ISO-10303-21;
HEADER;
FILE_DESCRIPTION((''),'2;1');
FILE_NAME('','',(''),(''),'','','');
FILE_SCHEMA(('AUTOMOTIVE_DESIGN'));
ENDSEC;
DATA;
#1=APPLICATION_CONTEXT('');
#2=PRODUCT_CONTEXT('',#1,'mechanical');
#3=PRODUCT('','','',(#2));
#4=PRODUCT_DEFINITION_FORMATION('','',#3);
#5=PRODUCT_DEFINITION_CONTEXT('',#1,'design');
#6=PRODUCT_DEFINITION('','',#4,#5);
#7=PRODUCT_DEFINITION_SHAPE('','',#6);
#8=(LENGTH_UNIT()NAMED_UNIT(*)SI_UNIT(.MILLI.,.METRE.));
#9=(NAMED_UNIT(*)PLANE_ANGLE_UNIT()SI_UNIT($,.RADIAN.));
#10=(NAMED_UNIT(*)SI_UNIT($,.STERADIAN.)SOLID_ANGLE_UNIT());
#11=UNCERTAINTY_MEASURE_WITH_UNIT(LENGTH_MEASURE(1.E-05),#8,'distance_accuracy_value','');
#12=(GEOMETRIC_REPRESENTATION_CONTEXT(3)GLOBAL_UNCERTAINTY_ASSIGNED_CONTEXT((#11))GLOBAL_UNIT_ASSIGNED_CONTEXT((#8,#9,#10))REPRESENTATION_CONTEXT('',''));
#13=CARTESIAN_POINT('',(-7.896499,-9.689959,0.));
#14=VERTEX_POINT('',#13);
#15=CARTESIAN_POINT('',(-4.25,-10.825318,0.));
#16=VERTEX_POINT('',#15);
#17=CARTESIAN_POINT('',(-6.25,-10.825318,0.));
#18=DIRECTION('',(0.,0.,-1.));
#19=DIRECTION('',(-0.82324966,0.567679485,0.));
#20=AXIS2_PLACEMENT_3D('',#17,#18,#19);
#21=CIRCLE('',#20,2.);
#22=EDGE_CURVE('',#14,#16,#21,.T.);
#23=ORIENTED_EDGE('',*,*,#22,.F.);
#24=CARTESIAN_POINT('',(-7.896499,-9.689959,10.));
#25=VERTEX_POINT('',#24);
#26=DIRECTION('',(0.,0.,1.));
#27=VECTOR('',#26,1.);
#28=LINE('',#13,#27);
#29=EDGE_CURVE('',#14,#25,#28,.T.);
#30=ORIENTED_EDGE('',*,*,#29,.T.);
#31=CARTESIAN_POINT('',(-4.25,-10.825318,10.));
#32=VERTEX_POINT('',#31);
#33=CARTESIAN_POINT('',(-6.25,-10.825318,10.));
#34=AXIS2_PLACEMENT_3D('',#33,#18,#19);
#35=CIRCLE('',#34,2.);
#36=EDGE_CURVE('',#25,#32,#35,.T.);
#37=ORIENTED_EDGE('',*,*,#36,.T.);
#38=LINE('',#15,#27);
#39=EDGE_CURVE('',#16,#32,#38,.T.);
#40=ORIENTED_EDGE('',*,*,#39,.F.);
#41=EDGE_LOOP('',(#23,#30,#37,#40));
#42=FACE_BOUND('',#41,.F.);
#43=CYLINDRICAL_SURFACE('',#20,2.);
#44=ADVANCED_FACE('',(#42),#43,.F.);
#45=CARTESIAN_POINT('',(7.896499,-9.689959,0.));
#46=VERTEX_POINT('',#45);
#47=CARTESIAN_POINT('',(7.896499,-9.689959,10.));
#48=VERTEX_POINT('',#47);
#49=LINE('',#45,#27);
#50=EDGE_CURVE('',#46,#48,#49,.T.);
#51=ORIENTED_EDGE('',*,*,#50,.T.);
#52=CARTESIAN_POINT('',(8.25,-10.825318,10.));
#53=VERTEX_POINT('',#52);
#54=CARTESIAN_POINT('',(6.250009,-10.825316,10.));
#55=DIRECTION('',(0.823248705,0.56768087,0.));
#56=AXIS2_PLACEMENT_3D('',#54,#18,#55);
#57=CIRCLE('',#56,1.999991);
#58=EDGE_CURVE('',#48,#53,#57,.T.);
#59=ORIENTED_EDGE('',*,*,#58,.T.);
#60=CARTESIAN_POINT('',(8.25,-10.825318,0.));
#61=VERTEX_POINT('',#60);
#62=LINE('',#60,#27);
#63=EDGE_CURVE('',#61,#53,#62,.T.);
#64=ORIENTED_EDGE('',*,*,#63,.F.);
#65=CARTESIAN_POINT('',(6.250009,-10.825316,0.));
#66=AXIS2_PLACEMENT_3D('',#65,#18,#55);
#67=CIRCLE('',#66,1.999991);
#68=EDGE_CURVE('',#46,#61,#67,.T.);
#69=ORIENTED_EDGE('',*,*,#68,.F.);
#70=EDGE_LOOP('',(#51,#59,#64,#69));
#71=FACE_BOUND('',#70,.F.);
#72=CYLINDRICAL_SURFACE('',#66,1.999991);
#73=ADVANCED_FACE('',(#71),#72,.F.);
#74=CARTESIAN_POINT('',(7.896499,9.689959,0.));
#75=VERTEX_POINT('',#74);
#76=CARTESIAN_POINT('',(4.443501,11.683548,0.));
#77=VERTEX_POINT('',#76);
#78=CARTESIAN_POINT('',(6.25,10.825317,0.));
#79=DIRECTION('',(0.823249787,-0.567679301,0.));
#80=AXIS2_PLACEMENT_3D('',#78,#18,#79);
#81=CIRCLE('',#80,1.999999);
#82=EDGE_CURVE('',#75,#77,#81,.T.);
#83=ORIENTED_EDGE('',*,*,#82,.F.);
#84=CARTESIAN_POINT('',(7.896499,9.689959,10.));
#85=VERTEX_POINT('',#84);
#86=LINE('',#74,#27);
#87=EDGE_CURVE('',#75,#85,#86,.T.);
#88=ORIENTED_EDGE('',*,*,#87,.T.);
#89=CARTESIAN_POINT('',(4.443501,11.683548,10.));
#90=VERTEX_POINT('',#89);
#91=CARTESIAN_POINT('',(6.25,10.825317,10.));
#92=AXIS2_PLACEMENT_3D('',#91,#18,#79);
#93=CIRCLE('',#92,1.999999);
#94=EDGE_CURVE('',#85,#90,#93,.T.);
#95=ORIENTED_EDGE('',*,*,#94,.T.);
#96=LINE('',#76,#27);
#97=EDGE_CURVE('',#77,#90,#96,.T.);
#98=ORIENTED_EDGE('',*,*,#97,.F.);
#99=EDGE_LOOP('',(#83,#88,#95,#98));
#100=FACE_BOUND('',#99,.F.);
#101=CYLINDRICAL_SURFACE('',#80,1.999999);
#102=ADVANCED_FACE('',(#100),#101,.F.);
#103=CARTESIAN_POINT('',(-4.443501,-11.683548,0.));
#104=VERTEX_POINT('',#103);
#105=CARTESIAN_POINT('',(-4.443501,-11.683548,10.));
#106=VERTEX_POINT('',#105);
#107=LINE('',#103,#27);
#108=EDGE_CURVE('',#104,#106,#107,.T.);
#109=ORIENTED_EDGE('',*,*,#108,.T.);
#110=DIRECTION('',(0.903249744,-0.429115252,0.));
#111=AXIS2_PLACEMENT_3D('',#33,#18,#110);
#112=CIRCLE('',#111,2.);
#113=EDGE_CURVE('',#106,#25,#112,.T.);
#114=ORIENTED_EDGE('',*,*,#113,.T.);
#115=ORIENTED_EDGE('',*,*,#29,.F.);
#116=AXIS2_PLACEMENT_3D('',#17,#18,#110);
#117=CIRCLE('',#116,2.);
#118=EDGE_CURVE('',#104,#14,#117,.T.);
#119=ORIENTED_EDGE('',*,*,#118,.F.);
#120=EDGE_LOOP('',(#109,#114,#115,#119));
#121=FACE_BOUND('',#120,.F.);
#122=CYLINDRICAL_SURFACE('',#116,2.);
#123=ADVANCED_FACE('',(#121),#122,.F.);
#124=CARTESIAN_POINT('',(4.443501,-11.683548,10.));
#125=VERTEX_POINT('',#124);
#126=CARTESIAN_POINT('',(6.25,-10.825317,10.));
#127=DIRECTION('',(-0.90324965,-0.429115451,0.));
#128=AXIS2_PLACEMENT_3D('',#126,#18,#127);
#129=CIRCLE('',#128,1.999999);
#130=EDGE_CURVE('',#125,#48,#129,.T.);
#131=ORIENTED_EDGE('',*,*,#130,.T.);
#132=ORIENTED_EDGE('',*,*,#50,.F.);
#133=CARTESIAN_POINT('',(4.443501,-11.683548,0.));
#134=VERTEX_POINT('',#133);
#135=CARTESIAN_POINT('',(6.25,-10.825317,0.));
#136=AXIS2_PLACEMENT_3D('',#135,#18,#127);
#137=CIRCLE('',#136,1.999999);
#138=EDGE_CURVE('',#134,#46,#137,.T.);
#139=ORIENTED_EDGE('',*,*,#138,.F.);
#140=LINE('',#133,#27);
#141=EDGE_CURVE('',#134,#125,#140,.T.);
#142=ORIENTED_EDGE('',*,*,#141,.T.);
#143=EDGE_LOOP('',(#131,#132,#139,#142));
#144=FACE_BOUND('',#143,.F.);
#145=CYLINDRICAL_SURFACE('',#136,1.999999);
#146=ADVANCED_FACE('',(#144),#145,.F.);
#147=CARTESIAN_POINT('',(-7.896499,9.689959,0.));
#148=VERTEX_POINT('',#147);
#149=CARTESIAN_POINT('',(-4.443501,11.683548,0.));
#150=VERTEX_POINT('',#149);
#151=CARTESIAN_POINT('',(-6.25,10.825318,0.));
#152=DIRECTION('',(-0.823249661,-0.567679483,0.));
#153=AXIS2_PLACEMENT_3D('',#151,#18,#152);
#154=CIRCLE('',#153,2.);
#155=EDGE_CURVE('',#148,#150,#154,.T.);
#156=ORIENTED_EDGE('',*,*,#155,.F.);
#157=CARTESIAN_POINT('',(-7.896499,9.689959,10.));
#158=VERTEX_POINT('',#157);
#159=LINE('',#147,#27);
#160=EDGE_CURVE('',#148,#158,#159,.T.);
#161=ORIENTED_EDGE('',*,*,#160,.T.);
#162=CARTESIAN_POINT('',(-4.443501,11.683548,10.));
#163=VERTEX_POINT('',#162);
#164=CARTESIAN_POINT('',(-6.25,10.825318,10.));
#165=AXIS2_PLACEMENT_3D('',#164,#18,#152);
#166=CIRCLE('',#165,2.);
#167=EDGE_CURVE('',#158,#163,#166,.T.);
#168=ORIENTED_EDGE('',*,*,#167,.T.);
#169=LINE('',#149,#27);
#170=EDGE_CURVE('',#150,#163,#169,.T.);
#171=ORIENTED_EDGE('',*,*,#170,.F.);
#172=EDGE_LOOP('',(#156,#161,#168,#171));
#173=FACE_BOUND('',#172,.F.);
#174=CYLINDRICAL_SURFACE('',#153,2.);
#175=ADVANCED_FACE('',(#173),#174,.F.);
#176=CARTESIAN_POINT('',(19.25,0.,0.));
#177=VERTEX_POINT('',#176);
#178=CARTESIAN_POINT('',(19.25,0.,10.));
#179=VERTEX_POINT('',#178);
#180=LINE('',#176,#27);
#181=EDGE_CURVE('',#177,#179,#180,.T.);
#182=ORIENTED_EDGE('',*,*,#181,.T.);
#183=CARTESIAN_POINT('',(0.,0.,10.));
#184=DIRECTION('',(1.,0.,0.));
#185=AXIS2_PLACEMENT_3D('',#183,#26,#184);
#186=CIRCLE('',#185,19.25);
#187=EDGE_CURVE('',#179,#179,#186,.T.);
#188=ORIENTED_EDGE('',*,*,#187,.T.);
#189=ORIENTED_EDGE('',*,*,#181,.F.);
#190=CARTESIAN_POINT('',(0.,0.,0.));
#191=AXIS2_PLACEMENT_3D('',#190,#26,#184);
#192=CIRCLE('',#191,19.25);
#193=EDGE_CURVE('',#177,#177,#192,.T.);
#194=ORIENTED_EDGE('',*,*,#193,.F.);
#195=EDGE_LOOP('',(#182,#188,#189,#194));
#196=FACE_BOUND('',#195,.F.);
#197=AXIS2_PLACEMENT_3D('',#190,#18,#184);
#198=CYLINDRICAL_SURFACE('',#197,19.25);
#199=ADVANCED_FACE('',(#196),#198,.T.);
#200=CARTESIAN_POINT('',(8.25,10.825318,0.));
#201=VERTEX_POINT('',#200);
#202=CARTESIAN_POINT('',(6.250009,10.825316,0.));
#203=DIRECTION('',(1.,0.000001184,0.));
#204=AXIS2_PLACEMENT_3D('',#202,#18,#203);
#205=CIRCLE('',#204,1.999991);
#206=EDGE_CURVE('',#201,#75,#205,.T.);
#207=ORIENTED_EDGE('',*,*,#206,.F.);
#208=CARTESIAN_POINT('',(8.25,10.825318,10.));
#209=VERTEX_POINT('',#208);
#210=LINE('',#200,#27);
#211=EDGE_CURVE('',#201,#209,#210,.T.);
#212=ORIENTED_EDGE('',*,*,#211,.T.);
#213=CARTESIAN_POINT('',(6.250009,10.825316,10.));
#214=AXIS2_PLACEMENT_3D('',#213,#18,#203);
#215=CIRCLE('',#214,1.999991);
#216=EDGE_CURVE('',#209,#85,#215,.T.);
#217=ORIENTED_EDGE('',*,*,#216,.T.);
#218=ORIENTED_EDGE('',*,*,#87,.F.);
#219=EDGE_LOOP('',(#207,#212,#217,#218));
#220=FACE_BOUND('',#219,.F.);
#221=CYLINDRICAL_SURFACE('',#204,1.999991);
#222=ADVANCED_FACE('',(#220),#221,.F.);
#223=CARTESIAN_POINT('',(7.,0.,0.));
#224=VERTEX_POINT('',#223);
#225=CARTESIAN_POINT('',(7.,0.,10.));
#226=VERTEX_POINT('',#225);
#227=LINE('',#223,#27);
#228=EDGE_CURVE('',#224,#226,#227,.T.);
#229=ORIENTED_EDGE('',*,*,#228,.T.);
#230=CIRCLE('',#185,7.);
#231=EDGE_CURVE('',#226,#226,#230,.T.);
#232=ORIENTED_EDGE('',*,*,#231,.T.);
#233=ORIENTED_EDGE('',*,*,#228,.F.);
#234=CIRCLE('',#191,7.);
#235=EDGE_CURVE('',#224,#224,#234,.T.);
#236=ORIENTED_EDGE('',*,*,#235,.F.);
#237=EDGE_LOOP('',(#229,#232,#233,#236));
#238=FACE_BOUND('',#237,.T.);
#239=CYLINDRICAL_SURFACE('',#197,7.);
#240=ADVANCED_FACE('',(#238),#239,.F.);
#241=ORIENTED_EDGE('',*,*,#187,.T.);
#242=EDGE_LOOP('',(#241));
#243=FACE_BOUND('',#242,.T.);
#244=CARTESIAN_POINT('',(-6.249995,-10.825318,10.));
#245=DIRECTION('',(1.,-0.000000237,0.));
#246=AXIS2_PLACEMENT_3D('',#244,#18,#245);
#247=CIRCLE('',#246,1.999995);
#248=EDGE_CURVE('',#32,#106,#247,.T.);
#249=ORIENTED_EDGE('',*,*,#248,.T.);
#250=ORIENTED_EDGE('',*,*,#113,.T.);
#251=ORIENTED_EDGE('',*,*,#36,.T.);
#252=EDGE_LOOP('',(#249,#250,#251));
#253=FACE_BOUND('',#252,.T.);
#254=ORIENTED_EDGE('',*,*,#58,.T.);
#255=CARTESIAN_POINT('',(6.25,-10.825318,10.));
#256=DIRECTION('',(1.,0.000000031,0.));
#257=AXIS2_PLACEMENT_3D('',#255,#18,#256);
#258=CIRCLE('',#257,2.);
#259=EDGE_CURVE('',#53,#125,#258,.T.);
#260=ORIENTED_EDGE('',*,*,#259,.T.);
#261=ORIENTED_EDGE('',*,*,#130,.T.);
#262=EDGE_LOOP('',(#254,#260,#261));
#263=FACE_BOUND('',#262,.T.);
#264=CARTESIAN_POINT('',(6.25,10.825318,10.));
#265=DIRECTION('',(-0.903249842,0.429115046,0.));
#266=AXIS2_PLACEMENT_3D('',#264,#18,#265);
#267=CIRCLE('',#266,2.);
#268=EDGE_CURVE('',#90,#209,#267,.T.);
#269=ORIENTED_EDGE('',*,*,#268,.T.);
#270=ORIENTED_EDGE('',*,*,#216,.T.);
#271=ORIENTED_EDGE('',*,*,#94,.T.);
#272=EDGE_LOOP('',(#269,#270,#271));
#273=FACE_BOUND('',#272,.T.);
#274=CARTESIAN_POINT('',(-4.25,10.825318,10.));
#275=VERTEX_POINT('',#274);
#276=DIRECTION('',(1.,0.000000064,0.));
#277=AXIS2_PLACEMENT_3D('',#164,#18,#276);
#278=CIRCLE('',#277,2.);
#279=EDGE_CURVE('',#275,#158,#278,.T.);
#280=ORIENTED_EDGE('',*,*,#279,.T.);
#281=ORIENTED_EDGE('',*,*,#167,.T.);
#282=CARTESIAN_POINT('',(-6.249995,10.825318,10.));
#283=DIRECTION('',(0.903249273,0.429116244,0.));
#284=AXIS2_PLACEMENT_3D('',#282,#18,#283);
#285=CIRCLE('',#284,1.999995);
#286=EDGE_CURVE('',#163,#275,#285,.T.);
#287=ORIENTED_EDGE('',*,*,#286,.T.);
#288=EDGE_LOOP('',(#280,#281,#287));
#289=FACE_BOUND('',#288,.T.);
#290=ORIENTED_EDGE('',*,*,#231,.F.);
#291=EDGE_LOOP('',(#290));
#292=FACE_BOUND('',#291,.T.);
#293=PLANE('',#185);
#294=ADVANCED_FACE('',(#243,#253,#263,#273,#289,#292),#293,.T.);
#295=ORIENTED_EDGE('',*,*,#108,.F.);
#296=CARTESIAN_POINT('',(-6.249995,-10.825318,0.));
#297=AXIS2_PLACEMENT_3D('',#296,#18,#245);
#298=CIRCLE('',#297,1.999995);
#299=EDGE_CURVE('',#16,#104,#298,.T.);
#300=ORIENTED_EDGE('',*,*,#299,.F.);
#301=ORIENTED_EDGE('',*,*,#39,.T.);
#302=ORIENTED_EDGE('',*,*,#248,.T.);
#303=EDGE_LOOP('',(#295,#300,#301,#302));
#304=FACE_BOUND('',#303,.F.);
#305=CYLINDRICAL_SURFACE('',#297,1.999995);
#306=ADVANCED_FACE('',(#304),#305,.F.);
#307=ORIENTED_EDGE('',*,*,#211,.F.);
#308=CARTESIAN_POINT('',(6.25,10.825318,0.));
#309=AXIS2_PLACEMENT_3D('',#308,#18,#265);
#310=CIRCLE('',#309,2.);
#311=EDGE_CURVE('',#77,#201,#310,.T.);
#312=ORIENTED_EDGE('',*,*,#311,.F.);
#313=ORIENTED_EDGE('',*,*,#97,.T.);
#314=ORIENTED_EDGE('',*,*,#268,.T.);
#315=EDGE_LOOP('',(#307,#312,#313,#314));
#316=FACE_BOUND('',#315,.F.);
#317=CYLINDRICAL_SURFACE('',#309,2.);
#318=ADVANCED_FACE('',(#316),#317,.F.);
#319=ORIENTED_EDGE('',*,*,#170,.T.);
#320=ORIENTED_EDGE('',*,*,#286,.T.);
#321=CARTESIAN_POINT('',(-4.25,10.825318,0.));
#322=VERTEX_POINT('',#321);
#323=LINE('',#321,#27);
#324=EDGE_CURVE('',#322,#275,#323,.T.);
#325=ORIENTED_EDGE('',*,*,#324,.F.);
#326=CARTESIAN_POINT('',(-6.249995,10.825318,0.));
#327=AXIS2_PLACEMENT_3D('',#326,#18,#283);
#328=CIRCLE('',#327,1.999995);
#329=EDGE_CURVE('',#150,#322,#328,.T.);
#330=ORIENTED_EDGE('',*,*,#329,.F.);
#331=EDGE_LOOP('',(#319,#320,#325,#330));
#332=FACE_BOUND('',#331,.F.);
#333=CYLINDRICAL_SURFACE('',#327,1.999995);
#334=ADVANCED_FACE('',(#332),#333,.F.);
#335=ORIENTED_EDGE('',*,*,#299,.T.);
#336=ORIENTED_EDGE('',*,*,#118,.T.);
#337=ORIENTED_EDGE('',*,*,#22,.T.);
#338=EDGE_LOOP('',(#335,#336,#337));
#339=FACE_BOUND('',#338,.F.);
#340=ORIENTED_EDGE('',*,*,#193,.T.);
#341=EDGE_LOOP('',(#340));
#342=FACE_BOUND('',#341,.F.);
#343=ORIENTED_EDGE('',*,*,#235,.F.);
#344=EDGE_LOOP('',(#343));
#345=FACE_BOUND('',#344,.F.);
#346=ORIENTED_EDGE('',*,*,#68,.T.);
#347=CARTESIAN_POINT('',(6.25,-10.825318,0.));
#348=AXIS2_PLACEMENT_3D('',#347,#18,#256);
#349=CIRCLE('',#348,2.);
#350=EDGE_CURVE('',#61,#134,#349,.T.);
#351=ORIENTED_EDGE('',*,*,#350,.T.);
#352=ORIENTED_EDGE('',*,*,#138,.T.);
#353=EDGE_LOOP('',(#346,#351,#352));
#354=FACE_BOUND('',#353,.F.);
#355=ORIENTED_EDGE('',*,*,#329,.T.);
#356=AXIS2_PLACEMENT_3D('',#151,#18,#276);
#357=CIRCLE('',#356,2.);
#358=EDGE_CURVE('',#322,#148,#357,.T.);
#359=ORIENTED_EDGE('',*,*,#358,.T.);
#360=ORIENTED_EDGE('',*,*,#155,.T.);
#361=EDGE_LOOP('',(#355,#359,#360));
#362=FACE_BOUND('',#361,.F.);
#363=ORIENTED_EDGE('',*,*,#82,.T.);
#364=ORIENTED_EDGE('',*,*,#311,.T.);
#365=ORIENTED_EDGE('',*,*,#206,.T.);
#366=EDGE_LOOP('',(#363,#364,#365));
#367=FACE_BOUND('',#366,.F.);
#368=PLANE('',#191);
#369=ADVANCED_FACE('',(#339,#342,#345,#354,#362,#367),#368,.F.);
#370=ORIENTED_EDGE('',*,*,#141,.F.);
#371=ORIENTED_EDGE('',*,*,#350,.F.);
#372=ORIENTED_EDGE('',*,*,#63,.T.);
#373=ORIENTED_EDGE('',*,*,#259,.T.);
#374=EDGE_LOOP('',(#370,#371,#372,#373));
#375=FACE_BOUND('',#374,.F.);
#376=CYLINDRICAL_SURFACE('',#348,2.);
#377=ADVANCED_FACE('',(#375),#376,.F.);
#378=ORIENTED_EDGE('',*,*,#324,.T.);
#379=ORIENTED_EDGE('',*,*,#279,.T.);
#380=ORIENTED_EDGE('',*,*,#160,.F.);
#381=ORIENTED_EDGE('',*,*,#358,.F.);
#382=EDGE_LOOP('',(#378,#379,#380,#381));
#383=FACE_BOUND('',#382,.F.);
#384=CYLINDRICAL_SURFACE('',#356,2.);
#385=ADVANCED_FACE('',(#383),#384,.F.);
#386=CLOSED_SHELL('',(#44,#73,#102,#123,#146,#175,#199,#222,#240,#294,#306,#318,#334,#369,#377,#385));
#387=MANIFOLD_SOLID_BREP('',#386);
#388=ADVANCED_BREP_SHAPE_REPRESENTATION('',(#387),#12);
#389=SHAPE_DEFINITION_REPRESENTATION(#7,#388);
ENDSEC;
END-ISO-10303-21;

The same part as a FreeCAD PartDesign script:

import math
import FreeCAD as App
import Part
import Sketcher
Q = App.Units.Quantity

doc = App.newDocument("Part")
body = doc.addObject("PartDesign::Body", "Body")

sketch1 = body.newObject("Sketcher::SketchObject", "Sketch")
sketch1.AttachmentSupport = (doc.getObject("XY_Plane"), [""])
sketch1.MapMode = "FlatFace"
sketch1.addGeometry([
    Part.Circle(App.Vector(0, 0, 0), App.Vector(0, 0, 1), 19.2),
    Part.ArcOfCircle(Part.Circle(App.Vector(-6.3, -10.8, 0), App.Vector(0, 0, 1), 2), math.radians(145), math.radians(335)),
    Part.ArcOfCircle(Part.Circle(App.Vector(-6.2, -10.8, 0), App.Vector(0, 0, 1), 2), math.radians(0), math.radians(145)),
    Part.ArcOfCircle(Part.Circle(App.Vector(-6.2, -10.8, 0), App.Vector(0, 0, 1), 2), math.radians(-25), math.radians(0)),
    Part.ArcOfCircle(Part.Circle(App.Vector(6.3, -10.8, 0), App.Vector(0, 0, 1), 2), math.radians(-155), math.radians(0)),
    Part.ArcOfCircle(Part.Circle(App.Vector(6.2, -10.8, 0), App.Vector(0, 0, 1), 2), math.radians(35), math.radians(205)),
    Part.ArcOfCircle(Part.Circle(App.Vector(6.3, -10.8, 0), App.Vector(0, 0, 1), 2), math.radians(0), math.radians(35)),
    Part.Circle(App.Vector(0, 0, 0), App.Vector(0, 0, 1), 7),
    Part.ArcOfCircle(Part.Circle(App.Vector(-6.3, 10.8, 0), App.Vector(0, 0, 1), 2), math.radians(25), math.radians(215)),
    Part.ArcOfCircle(Part.Circle(App.Vector(-6.2, 10.8, 0), App.Vector(0, 0, 1), 2), math.radians(0), math.radians(25)),
    Part.ArcOfCircle(Part.Circle(App.Vector(-6.2, 10.8, 0), App.Vector(0, 0, 1), 2), math.radians(-145), math.radians(0)),
    Part.ArcOfCircle(Part.Circle(App.Vector(6.3, 10.8, 0), App.Vector(0, 0, 1), 2), math.radians(-35), math.radians(0)),
    Part.ArcOfCircle(Part.Circle(App.Vector(6.2, 10.8, 0), App.Vector(0, 0, 1), 2), math.radians(155), math.radians(325)),
    Part.ArcOfCircle(Part.Circle(App.Vector(6.3, 10.8, 0), App.Vector(0, 0, 1), 2), math.radians(0), math.radians(155)),
], False)
sketch1.addConstraint([
    Sketcher.Constraint("Tangent", 1, 1, 2, 2),
    Sketcher.Constraint("Tangent", 2, 1, 3, 2),
    Sketcher.Constraint("Tangent", 3, 1, 1, 2),
    Sketcher.Constraint("Tangent", 4, 1, 5, 2),
    Sketcher.Constraint("Tangent", 5, 1, 6, 2),
    Sketcher.Constraint("Tangent", 6, 1, 4, 2),
    Sketcher.Constraint("Tangent", 8, 1, 9, 2),
    Sketcher.Constraint("Tangent", 9, 1, 10, 2),
    Sketcher.Constraint("Tangent", 10, 1, 8, 2),
    Sketcher.Constraint("Tangent", 11, 1, 12, 2),
    Sketcher.Constraint("Tangent", 12, 1, 13, 2),
    Sketcher.Constraint("Tangent", 13, 1, 11, 2),
    Sketcher.Constraint("Coincident", 0, 3, -1, 1),
    Sketcher.Constraint("Coincident", 7, 3, -1, 1),
    Sketcher.Constraint("Equal", 2, 4),
    Sketcher.Constraint("Equal", 5, 8),
    Sketcher.Constraint("Equal", 6, 11),
    Sketcher.Constraint("Symmetric", 4, 3, 8, 3, -1, 1),
    Sketcher.Constraint("Symmetric", 1, 3, 11, 3, -1, 1),
    Sketcher.Constraint("Symmetric", 1, 3, 4, 3, -2),
    Sketcher.Constraint("Horizontal", 5, 3, 2, 1),
    Sketcher.Constraint("Horizontal", 3, 1, 4, 1),
    Sketcher.Constraint("Horizontal", 1, 1, 5, 1),
    Sketcher.Constraint("Horizontal", 2, 1, 6, 1),
    Sketcher.Constraint("Horizontal", 13, 3, 9, 1),
    Sketcher.Constraint("Horizontal", 10, 1, 11, 1),
    Sketcher.Constraint("Horizontal", 8, 1, 12, 1),
    Sketcher.Constraint("Horizontal", 9, 1, 13, 1),
    Sketcher.Constraint("Vertical", 3, 1, 8, 1),
    Sketcher.Constraint("Vertical", 1, 1, 10, 1),
    Sketcher.Constraint("Diameter", 7, Q("14 mm")),
    Sketcher.Constraint("Radius", 1, Q("2 mm")),
    Sketcher.Constraint("Diameter", 0, Q("38.5 mm")),
    Sketcher.Constraint("DistanceX", 2, 3, 4, 3, Q("12.5 mm")),
    Sketcher.Constraint("DistanceX", 8, 1, 11, 1, Q("12.34 mm")),
    Sketcher.Constraint("DistanceX", 1, 1, 3, 1, Q("3.452998 mm")),
    Sketcher.Constraint("DistanceY", 4, 3, -1, 1, Q("10.825318 mm")),
])
pad1 = body.newObject("PartDesign::Pad", "Pad")
pad1.Profile = sketch1
pad1.Length = 10

doc.recompute()
